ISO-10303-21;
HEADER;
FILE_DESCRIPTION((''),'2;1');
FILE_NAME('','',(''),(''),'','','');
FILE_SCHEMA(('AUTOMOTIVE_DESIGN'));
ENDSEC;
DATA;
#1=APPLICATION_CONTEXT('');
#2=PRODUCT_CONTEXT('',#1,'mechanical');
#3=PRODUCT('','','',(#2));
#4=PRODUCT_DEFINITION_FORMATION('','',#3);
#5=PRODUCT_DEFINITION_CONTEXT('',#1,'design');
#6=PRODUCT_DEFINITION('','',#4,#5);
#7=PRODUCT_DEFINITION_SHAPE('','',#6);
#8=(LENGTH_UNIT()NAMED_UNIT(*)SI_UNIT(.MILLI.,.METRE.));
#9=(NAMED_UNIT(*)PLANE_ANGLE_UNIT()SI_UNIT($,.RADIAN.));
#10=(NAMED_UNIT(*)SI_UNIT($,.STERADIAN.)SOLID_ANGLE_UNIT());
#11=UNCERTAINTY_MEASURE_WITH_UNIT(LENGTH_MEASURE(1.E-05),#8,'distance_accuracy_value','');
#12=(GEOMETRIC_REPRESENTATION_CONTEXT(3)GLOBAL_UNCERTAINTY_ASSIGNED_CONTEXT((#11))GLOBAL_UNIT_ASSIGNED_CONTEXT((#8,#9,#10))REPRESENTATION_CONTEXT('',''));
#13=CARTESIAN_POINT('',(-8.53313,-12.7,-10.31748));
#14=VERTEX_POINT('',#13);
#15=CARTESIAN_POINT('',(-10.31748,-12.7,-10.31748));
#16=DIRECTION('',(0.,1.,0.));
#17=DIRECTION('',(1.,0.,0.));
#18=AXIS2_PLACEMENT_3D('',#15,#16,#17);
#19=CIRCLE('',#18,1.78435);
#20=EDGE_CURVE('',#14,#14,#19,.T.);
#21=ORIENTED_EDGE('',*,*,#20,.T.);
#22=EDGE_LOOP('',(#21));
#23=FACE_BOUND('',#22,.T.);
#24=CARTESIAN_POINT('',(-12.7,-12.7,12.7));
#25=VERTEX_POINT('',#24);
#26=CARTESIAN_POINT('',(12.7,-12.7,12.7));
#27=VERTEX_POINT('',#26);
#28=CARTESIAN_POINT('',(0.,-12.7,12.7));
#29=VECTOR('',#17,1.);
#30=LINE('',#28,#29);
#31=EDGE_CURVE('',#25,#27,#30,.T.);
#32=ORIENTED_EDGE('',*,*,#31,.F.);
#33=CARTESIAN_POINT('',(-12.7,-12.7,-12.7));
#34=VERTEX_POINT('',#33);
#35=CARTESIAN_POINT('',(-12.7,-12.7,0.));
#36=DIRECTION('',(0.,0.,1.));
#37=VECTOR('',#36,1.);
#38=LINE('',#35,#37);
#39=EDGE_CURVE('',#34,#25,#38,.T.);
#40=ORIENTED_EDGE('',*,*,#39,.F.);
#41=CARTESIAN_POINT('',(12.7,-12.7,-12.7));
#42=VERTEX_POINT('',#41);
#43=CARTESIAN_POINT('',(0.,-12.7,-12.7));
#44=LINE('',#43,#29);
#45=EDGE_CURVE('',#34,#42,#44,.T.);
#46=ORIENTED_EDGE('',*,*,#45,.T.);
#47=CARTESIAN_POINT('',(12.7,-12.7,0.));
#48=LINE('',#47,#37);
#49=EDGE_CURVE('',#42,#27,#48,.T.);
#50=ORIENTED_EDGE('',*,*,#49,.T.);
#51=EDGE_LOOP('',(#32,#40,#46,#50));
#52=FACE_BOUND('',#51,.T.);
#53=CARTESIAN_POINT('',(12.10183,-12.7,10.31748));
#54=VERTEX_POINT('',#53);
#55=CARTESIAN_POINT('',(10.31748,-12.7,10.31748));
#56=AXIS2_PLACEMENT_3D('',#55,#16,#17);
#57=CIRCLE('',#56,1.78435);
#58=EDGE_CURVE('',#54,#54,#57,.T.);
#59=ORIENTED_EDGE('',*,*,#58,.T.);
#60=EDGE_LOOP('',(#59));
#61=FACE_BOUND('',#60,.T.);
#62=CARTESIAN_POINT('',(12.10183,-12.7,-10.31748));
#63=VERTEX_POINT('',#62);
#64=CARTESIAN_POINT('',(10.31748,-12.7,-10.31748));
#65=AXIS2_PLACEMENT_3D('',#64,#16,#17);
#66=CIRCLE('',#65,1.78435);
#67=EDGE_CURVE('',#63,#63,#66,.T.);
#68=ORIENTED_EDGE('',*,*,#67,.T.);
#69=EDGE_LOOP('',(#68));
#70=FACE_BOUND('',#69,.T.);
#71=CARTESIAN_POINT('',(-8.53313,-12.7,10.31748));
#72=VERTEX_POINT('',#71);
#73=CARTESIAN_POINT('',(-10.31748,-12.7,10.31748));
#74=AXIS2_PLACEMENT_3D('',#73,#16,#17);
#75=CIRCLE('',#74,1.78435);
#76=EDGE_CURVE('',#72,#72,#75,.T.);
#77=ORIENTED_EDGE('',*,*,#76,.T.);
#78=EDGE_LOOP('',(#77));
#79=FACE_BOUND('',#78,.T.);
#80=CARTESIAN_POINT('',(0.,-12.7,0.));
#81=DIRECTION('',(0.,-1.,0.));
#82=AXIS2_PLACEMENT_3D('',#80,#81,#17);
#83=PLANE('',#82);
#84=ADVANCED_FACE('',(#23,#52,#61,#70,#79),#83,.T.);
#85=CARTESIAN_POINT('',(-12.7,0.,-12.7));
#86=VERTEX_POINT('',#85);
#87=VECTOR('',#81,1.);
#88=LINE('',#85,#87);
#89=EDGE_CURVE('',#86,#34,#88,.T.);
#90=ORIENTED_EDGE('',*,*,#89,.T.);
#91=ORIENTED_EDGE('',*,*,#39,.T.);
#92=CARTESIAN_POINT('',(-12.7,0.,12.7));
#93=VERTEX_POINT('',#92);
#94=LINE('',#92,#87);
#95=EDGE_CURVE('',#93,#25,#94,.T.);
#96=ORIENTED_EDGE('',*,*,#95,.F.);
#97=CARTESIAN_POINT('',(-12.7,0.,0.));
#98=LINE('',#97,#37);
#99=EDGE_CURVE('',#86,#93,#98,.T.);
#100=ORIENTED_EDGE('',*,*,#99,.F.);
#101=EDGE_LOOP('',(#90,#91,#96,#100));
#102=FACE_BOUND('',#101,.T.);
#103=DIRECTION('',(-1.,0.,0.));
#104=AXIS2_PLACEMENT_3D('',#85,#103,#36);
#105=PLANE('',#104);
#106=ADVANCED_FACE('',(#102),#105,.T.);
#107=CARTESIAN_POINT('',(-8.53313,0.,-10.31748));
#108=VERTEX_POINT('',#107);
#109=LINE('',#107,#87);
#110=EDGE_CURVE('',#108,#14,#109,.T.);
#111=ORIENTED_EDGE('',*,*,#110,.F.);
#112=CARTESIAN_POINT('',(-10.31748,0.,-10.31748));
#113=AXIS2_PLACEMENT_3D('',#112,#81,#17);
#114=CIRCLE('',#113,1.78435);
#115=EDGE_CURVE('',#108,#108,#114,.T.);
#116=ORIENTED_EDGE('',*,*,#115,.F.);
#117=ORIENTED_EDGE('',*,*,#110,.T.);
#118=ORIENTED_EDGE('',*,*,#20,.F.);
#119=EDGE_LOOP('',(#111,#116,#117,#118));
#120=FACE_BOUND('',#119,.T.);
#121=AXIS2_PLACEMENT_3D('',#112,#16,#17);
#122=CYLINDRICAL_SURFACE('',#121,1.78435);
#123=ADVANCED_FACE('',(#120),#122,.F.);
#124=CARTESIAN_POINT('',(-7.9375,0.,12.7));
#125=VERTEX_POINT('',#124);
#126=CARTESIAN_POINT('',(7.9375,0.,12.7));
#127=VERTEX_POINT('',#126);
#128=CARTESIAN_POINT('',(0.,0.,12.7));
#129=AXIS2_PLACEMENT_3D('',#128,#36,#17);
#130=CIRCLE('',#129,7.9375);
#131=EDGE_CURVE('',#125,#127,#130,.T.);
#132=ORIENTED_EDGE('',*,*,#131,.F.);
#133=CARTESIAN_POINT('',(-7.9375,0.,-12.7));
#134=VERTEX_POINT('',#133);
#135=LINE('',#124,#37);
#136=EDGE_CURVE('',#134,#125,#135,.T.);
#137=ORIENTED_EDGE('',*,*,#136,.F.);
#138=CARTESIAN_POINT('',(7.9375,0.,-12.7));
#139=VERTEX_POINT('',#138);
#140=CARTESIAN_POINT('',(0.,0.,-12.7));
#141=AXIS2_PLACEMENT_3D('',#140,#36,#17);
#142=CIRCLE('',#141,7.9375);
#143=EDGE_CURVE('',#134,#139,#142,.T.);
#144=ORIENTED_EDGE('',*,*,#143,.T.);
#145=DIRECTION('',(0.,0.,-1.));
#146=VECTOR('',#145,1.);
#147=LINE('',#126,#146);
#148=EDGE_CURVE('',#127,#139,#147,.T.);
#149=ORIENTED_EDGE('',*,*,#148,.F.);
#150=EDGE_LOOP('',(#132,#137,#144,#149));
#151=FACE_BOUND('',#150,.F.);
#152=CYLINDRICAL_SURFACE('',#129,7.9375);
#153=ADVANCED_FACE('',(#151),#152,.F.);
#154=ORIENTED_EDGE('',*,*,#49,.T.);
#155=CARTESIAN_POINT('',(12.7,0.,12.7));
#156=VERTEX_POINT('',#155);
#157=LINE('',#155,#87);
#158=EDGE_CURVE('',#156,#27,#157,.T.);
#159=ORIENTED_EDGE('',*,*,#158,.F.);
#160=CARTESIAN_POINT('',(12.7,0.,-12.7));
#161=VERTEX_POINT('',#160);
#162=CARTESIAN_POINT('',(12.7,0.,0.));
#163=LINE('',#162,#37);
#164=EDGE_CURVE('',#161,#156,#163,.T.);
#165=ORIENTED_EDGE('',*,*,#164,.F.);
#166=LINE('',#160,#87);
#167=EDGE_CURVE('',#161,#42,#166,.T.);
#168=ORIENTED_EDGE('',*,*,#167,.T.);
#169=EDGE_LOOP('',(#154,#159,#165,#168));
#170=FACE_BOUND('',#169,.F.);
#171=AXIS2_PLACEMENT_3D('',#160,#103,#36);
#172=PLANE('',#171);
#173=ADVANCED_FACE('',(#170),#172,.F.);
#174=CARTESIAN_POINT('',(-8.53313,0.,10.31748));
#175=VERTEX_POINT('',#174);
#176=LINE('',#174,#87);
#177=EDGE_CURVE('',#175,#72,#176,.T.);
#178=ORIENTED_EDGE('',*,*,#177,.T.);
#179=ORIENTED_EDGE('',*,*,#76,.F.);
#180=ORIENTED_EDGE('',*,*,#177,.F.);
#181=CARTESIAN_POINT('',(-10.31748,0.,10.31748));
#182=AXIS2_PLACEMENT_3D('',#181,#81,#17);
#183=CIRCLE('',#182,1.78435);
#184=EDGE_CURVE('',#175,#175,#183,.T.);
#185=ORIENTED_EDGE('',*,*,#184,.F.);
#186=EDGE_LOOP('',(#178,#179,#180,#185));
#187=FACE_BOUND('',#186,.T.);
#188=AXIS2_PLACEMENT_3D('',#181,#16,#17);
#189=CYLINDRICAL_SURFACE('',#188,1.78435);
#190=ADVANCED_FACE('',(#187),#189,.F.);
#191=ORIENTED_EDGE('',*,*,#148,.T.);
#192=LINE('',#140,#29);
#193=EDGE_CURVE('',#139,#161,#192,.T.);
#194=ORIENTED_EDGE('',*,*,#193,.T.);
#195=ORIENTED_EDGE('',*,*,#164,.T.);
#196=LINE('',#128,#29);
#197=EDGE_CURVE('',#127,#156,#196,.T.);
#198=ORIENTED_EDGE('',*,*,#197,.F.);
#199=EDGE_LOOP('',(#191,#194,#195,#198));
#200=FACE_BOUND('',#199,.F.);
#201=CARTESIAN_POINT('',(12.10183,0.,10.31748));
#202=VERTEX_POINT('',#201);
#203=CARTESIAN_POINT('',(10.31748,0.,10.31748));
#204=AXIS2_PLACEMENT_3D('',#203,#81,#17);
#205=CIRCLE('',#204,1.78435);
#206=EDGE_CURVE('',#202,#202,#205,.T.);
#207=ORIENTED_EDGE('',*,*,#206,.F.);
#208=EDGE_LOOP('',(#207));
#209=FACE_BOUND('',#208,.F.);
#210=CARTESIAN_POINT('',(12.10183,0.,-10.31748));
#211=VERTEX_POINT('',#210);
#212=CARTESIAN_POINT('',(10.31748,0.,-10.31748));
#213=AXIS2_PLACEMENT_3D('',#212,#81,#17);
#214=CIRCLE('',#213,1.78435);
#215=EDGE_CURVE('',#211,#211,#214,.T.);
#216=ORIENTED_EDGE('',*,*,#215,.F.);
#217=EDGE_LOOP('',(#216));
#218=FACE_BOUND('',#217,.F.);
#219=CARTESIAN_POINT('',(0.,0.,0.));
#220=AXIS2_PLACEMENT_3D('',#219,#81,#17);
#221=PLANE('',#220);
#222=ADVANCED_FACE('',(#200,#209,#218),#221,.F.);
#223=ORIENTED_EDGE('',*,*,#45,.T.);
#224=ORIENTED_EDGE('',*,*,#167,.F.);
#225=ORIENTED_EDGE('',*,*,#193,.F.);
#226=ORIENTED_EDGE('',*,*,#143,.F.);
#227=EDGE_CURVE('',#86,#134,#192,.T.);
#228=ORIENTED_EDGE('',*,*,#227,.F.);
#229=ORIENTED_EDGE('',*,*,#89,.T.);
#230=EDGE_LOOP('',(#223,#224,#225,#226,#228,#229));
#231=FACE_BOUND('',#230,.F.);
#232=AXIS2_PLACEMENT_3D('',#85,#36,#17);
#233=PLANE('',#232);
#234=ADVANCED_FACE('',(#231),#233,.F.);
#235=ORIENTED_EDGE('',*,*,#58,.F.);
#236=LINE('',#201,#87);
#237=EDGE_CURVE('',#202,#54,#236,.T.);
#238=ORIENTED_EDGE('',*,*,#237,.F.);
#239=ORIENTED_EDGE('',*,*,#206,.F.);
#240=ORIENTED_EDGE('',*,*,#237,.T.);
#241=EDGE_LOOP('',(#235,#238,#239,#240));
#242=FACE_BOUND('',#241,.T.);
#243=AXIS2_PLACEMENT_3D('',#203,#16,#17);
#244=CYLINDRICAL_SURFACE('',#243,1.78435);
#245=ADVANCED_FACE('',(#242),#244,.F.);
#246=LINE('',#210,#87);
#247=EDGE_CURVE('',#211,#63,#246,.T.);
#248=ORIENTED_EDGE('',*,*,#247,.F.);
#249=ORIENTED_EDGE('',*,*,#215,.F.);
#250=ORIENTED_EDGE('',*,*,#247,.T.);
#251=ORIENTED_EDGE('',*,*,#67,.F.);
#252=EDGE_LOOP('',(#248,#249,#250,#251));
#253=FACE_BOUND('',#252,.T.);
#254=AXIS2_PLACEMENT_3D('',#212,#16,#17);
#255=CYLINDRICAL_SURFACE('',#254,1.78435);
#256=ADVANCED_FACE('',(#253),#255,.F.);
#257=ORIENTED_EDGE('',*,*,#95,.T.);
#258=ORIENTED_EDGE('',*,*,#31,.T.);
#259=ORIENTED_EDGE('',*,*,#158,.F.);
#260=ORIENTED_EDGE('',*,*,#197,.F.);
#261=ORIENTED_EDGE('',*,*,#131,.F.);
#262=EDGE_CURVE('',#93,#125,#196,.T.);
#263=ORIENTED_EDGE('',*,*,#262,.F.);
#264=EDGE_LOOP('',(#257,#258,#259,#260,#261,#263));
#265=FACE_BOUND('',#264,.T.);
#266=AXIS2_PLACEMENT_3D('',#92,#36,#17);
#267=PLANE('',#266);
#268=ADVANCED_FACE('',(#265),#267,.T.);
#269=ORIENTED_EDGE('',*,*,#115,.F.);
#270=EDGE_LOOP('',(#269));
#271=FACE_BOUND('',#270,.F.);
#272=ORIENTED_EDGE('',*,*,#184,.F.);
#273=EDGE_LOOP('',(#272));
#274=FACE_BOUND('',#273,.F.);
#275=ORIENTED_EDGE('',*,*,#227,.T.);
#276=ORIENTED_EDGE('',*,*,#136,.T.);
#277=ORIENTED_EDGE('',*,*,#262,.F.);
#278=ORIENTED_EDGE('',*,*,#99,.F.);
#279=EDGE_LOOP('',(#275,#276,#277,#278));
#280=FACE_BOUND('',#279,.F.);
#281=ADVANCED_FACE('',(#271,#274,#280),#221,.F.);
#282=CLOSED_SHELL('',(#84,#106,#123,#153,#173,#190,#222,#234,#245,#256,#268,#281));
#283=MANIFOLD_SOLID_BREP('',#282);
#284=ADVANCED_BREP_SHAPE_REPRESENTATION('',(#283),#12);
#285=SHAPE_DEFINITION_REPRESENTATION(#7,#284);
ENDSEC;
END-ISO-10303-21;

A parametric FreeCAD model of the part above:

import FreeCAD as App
import Part
import Sketcher
Q = App.Units.Quantity

doc = App.newDocument("Part")
body = doc.addObject("PartDesign::Body", "Body")

# Sketch on XZ plane
sketch1 = body.newObject("Sketcher::SketchObject", "Sketch")
sketch1.AttachmentSupport = (doc.getObject("XZ_Plane"), [""])
sketch1.MapMode = "FlatFace"
sketch1.addGeometry(Part.LineSegment(App.Vector(-13, 13, 0), App.Vector(-13, -13, 0)), False)
sketch1.addGeometry(Part.LineSegment(App.Vector(-13, -13, 0), App.Vector(13, -13, 0)), False)
sketch1.addGeometry(Part.LineSegment(App.Vector(13, -13, 0), App.Vector(13, 13, 0)), False)
sketch1.addGeometry(Part.LineSegment(App.Vector(13, 13, 0), App.Vector(-13, 13, 0)), False)
sketch1.addConstraint(Sketcher.Constraint("Coincident", 0, 2, 1, 1))
sketch1.addConstraint(Sketcher.Constraint("Coincident", 1, 2, 2, 1))
sketch1.addConstraint(Sketcher.Constraint("Coincident", 2, 2, 3, 1))
sketch1.addConstraint(Sketcher.Constraint("Coincident", 3, 2, 0, 1))
sketch1.addConstraint(Sketcher.Constraint("Vertical", 0))
sketch1.addConstraint(Sketcher.Constraint("Horizontal", 1))
sketch1.addConstraint(Sketcher.Constraint("Vertical", 2))
sketch1.addConstraint(Sketcher.Constraint("Horizontal", 3))
sketch1.addConstraint(Sketcher.Constraint("Symmetric", 0, 2, 2, 2, -1, 1))
sketch1.addConstraint(Sketcher.Constraint("Equal", 3, 0))
sketch1.addConstraint(Sketcher.Constraint("DistanceX", 1, 1, 1, 2, Q("1 in")))
pad1 = body.newObject("PartDesign::Pad", "Pad")
pad1.Profile = sketch1
pad1.Length = Q("0.5 in")

# Sketch on XY plane
sketch2 = body.newObject("Sketcher::SketchObject", "Sketch001")
sketch2.AttachmentSupport = (doc.getObject("XY_Plane"), [""])
sketch2.MapMode = "FlatFace"
sketch2.AttachmentOffset = App.Placement(App.Vector(0, 0, 0.5 * 25.4), App.Rotation())
sketch2.addGeometry(Part.Circle(App.Vector(0, 0, 0), App.Vector(0, 0, 1), 8), False)
sketch2.addConstraint(Sketcher.Constraint("Coincident", 0, 3, -1, 1))
sketch2.addConstraint(Sketcher.Constraint("Diameter", 0, Q("0.625 in")))
pocket1 = body.newObject("PartDesign::Pocket", "Pocket")
pocket1.Profile = sketch2
pocket1.Type = "ThroughAll"

# Sketch on XZ plane
sketch3 = body.newObject("Sketcher::SketchObject", "Sketch002")
sketch3.AttachmentSupport = (doc.getObject("XZ_Plane"), [""])
sketch3.MapMode = "FlatFace"
sketch3.addGeometry(Part.Circle(App.Vector(-10.3, 10.3, 0), App.Vector(0, 0, 1), 1.8), False)
sketch3.addGeometry(Part.Circle(App.Vector(-10.3, -10.3, 0), App.Vector(0, 0, 1), 1.8), False)
sketch3.addGeometry(Part.Circle(App.Vector(10.3, -10.3, 0), App.Vector(0, 0, 1), 1.8), False)
sketch3.addGeometry(Part.Circle(App.Vector(10.3, 10.3, 0), App.Vector(0, 0, 1), 1.8), False)
sketch3.addConstraint(Sketcher.Constraint("Equal", 0, 1))
sketch3.addConstraint(Sketcher.Constraint("Equal", 1, 2))
sketch3.addConstraint(Sketcher.Constraint("Equal", 2, 3))
sketch3.addConstraint(Sketcher.Constraint("Symmetric", 0, 3, 2, 3, -1, 1))
sketch3.addConstraint(Sketcher.Constraint("Symmetric", 1, 3, 3, 3, -1, 1))
sketch3.addConstraint(Sketcher.Constraint("Symmetric", 1, 3, 2, 3, -2))
sketch3.addConstraint(Sketcher.Constraint("Diameter", 0, Q("0.1405 in")))
sketch3.addConstraint(Sketcher.Constraint("DistanceX", 0, 3, -1, 1, Q("0.4062 in")))
sketch3.addConstraint(Sketcher.Constraint("DistanceY", -1, 1, 0, 3, Q("0.4062 in")))
pocket2 = body.newObject("PartDesign::Pocket", "Pocket001")
pocket2.Profile = sketch3
pocket2.Type = "ThroughAll"
pocket2.Reversed = True

doc.recompute()
